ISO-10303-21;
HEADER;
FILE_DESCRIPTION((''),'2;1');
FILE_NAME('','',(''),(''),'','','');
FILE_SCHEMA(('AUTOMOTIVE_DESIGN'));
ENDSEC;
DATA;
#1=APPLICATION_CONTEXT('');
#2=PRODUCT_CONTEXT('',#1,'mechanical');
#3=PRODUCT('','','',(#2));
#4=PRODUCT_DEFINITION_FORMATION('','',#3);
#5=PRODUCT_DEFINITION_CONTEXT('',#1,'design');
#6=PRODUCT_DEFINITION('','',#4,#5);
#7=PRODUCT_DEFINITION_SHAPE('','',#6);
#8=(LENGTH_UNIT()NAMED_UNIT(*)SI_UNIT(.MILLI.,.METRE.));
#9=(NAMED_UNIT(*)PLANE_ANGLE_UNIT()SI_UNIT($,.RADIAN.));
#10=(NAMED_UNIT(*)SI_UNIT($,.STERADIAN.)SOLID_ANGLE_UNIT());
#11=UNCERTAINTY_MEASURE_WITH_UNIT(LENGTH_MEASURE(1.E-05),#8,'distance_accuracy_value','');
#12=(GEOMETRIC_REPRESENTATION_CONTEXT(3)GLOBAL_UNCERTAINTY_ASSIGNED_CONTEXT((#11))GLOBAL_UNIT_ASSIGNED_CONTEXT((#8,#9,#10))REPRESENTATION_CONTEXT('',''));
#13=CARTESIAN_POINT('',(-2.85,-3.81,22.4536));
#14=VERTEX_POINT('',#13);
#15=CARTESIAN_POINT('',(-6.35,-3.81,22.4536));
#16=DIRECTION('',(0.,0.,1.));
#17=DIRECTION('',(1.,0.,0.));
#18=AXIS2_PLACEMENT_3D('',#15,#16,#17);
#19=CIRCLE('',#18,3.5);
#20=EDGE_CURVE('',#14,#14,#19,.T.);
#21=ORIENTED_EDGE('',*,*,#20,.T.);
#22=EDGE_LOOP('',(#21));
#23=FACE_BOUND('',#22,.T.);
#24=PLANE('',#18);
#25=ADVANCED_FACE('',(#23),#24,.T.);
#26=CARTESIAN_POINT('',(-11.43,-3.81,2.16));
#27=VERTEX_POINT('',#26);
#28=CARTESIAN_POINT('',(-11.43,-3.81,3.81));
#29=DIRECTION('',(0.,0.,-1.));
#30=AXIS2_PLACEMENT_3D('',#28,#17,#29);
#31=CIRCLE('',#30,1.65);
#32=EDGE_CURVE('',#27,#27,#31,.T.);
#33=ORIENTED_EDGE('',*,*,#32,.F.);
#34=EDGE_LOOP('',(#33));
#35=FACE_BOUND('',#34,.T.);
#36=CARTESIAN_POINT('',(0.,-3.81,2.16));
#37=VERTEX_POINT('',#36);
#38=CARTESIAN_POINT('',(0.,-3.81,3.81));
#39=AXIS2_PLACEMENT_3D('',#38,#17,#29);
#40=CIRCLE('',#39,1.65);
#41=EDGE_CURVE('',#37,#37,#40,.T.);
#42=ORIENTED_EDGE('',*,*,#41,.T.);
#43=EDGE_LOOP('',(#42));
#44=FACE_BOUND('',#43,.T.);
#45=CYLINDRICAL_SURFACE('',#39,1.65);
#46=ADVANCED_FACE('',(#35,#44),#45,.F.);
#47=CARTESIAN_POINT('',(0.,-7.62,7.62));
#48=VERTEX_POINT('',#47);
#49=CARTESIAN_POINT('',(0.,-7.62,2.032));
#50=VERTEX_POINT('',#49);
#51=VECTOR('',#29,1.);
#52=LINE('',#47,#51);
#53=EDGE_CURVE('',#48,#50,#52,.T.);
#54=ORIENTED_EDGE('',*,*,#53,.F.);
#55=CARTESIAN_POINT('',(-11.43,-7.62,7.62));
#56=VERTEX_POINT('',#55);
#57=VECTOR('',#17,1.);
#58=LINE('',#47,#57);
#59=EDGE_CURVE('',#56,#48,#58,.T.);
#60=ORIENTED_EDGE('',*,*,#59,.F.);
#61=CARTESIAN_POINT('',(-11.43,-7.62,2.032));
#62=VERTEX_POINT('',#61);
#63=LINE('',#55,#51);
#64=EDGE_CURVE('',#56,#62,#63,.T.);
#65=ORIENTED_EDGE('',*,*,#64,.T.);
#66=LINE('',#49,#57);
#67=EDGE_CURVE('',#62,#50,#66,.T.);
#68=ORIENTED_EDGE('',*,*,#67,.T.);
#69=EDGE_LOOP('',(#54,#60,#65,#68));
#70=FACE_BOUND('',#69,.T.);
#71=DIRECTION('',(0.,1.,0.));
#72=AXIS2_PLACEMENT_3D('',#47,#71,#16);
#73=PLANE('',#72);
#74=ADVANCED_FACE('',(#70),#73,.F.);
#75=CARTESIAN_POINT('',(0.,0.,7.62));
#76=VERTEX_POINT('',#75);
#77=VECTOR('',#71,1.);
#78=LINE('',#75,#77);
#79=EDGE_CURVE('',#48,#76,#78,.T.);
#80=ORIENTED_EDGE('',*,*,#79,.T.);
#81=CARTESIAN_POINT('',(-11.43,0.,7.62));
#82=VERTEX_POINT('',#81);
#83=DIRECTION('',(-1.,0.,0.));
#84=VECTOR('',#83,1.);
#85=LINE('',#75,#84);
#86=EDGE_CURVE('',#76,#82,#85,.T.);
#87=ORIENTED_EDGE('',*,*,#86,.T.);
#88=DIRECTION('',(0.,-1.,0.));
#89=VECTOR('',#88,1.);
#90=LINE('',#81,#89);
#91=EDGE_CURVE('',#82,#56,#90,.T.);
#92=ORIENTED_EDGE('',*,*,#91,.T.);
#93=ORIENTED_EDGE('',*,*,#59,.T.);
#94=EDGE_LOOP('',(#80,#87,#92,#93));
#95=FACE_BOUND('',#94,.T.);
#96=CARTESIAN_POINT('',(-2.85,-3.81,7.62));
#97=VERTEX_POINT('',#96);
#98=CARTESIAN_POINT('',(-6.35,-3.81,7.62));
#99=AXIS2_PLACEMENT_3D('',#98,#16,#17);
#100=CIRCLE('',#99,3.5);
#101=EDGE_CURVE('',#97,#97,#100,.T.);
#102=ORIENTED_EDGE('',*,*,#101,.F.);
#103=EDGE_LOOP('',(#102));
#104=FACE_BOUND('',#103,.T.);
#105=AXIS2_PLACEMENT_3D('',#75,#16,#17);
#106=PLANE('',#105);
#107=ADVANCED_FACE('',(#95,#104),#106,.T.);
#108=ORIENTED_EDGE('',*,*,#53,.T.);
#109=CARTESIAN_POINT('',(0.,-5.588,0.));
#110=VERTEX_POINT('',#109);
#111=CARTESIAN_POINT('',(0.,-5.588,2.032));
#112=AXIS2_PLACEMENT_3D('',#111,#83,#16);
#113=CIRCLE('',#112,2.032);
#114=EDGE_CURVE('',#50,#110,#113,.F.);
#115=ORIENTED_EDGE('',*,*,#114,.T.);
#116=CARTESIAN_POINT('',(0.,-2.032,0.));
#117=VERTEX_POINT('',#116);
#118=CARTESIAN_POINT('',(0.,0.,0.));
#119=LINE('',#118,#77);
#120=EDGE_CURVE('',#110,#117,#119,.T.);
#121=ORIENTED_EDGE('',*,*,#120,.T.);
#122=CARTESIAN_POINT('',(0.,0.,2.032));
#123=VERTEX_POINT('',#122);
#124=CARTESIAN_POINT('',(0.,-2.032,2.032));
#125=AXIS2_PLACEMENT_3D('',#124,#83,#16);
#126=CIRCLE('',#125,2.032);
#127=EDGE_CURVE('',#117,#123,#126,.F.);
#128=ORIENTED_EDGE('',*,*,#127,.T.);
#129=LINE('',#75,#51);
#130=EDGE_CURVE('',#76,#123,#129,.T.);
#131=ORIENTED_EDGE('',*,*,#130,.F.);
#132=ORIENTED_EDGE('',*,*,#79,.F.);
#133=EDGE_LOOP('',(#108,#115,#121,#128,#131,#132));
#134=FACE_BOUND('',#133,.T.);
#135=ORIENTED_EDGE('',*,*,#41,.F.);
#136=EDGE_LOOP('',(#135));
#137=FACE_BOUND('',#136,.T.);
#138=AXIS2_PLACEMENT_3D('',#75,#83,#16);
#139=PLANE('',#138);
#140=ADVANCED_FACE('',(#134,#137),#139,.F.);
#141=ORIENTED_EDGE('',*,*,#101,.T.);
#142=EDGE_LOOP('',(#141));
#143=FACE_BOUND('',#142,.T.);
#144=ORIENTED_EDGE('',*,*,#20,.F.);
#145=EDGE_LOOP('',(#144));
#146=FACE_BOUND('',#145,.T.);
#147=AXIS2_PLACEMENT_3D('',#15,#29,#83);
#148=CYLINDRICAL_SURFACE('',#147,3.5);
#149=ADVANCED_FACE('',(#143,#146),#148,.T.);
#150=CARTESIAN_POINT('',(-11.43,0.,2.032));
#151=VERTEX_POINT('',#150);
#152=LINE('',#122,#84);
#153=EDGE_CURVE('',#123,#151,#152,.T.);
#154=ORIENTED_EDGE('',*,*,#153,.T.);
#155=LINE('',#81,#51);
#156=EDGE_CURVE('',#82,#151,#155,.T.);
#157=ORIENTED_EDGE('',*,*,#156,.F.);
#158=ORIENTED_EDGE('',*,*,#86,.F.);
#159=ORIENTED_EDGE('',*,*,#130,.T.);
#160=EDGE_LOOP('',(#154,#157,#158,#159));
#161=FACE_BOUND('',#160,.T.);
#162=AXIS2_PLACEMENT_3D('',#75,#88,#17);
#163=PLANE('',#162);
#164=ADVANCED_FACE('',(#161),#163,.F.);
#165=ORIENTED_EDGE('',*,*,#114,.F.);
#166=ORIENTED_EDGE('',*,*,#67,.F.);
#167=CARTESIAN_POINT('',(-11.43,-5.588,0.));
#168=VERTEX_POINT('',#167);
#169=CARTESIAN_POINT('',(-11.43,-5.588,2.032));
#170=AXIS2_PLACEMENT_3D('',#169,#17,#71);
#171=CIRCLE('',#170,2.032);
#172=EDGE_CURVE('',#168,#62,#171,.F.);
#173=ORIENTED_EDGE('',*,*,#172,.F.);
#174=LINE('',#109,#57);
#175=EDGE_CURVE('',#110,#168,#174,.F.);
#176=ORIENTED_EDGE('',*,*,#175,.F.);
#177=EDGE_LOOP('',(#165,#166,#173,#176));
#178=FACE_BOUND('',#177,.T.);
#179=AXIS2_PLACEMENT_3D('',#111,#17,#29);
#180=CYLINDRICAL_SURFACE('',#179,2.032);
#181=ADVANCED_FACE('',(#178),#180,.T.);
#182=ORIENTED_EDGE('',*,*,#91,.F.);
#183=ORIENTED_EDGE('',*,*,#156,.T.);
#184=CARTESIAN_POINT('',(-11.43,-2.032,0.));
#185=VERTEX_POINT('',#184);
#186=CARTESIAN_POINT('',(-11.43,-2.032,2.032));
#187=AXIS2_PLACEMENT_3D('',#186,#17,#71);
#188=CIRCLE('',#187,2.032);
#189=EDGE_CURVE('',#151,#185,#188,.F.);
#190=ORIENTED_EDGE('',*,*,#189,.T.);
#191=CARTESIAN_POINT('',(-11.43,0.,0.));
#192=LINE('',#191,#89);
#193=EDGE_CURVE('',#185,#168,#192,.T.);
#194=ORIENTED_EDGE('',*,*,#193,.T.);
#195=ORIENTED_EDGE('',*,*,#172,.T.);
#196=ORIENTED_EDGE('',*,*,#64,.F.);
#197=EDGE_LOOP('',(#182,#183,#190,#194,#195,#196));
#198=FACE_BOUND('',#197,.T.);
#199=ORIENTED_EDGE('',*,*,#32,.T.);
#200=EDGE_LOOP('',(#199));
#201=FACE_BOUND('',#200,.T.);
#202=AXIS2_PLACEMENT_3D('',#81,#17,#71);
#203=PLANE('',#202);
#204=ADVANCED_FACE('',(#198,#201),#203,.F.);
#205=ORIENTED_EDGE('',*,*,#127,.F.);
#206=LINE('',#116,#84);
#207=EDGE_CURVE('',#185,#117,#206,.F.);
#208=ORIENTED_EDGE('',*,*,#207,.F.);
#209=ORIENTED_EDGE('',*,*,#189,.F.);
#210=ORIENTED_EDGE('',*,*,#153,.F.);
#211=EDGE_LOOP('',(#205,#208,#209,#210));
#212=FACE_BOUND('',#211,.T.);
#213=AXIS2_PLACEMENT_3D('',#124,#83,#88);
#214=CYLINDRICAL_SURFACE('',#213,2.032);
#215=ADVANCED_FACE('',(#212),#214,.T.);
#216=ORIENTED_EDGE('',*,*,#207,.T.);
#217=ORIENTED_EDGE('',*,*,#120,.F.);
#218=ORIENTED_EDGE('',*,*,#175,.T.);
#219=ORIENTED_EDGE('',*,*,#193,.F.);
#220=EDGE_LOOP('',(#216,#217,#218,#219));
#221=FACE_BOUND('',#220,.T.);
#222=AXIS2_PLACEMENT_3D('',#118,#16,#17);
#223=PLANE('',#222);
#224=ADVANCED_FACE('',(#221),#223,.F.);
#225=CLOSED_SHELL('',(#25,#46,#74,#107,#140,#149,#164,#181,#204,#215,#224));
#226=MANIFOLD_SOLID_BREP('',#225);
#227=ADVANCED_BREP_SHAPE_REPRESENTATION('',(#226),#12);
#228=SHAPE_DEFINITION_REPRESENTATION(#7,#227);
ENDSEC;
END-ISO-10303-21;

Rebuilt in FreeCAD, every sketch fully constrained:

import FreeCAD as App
import Part
import Sketcher

V = App.Vector
Q = App.Units.Quantity


def edges_at(feature, points):
    """Names of the edges that pass closest to the given points."""
    edges = feature.Shape.Edges
    near = lambda p: min(range(len(edges)), key=lambda i: edges[i].distToShape(Part.Vertex(*p))[0])
    return sorted({f"Edge{near(p) + 1}" for p in points})

doc = App.newDocument("Part")
body = doc.addObject("PartDesign::Body", "Body")

# Sketch on XY plane
sketch1 = body.newObject("Sketcher::SketchObject", "Sketch")
sketch1.AttachmentSupport = (doc.getObject("XY_Plane"), [""])
sketch1.MapMode = "FlatFace"
sketch1.addGeometry([
    Part.LineSegment(V(-11.43, -7.62, 0), V(0, -7.62, 0)),
    Part.LineSegment(V(0, -7.62, 0), V(0, 0, 0)),
    Part.LineSegment(V(0, 0, 0), V(-11.43, 0, 0)),
    Part.LineSegment(V(-11.43, 0, 0), V(-11.43, -7.62, 0)),
], False)
sketch1.addConstraint([
    Sketcher.Constraint("Coincident", 0, 2, 1, 1),
    Sketcher.Constraint("Coincident", 1, 2, 2, 1),
    Sketcher.Constraint("Coincident", 2, 2, 3, 1),
    Sketcher.Constraint("Coincident", 3, 2, 0, 1),
    Sketcher.Constraint("Horizontal", 0),
    Sketcher.Constraint("Vertical", 1),
    Sketcher.Constraint("Horizontal", 2),
    Sketcher.Constraint("Vertical", 3),
    Sketcher.Constraint("Coincident", 1, 2, -1, 1),
    Sketcher.Constraint("DistanceY", 1, 1, 1, 2, Q("0.3 in")),
    Sketcher.Constraint("DistanceX", 0, 1, 0, 2, Q("0.45 in")),
])
pad1 = body.newObject("PartDesign::Pad", "Pad")
pad1.Profile = sketch1
pad1.Length = Q("0.3 in")

# Sketch on XY plane
sketch2 = body.newObject("Sketcher::SketchObject", "Sketch001")
sketch2.AttachmentSupport = (doc.getObject("XY_Plane"), [""])
sketch2.MapMode = "FlatFace"
sketch2.AttachmentOffset = App.Placement(V(0, 0, 0.3 * 25.4), App.Rotation())
sketch2.addGeometry(Part.Circle(V(-6.35, -3.81, 0), V(0, 0, 1), 3.5), False)
sketch2.addConstraint([
    Sketcher.Constraint("Diameter", 0, 7.0),
    Sketcher.Constraint("DistanceX", 0, 3, -1, 1, Q("0.25 in")),
    Sketcher.Constraint("DistanceY", 0, 3, -1, 1, Q("0.15 in")),
])
pad2 = body.newObject("PartDesign::Pad", "Pad001")
pad2.Profile = sketch2
pad2.Length = Q("0.584 in")

# Sketch on YZ plane
sketch3 = body.newObject("Sketcher::SketchObject", "Sketch002")
sketch3.AttachmentSupport = (doc.getObject("YZ_Plane"), [""])
sketch3.MapMode = "FlatFace"
sketch3.addGeometry(Part.Circle(V(-3.81, 3.81, 0), V(0, 0, 1), 1.65), False)
sketch3.addConstraint([
    Sketcher.Constraint("Diameter", 0, 3.3),
    Sketcher.Constraint("DistanceX", 0, 3, -1, 1, Q("0.15 in")),
    Sketcher.Constraint("DistanceY", -1, 1, 0, 3, Q("0.15 in")),
])
doc.recompute()
hole = body.newObject("PartDesign::Hole", "Hole")
hole.Profile = sketch3
hole.ThreadType = "None"
hole.Diameter = 3.3
hole.DepthType = "ThroughAll"
doc.recompute()

fillet = body.newObject("PartDesign::Fillet", "Fillet")
fillet.Base = (hole, edges_at(hole, [(-5.715, -7.62, 0), (-5.715, 0, 0)]))
fillet.Radius = Q("0.08 in")

doc.recompute()
